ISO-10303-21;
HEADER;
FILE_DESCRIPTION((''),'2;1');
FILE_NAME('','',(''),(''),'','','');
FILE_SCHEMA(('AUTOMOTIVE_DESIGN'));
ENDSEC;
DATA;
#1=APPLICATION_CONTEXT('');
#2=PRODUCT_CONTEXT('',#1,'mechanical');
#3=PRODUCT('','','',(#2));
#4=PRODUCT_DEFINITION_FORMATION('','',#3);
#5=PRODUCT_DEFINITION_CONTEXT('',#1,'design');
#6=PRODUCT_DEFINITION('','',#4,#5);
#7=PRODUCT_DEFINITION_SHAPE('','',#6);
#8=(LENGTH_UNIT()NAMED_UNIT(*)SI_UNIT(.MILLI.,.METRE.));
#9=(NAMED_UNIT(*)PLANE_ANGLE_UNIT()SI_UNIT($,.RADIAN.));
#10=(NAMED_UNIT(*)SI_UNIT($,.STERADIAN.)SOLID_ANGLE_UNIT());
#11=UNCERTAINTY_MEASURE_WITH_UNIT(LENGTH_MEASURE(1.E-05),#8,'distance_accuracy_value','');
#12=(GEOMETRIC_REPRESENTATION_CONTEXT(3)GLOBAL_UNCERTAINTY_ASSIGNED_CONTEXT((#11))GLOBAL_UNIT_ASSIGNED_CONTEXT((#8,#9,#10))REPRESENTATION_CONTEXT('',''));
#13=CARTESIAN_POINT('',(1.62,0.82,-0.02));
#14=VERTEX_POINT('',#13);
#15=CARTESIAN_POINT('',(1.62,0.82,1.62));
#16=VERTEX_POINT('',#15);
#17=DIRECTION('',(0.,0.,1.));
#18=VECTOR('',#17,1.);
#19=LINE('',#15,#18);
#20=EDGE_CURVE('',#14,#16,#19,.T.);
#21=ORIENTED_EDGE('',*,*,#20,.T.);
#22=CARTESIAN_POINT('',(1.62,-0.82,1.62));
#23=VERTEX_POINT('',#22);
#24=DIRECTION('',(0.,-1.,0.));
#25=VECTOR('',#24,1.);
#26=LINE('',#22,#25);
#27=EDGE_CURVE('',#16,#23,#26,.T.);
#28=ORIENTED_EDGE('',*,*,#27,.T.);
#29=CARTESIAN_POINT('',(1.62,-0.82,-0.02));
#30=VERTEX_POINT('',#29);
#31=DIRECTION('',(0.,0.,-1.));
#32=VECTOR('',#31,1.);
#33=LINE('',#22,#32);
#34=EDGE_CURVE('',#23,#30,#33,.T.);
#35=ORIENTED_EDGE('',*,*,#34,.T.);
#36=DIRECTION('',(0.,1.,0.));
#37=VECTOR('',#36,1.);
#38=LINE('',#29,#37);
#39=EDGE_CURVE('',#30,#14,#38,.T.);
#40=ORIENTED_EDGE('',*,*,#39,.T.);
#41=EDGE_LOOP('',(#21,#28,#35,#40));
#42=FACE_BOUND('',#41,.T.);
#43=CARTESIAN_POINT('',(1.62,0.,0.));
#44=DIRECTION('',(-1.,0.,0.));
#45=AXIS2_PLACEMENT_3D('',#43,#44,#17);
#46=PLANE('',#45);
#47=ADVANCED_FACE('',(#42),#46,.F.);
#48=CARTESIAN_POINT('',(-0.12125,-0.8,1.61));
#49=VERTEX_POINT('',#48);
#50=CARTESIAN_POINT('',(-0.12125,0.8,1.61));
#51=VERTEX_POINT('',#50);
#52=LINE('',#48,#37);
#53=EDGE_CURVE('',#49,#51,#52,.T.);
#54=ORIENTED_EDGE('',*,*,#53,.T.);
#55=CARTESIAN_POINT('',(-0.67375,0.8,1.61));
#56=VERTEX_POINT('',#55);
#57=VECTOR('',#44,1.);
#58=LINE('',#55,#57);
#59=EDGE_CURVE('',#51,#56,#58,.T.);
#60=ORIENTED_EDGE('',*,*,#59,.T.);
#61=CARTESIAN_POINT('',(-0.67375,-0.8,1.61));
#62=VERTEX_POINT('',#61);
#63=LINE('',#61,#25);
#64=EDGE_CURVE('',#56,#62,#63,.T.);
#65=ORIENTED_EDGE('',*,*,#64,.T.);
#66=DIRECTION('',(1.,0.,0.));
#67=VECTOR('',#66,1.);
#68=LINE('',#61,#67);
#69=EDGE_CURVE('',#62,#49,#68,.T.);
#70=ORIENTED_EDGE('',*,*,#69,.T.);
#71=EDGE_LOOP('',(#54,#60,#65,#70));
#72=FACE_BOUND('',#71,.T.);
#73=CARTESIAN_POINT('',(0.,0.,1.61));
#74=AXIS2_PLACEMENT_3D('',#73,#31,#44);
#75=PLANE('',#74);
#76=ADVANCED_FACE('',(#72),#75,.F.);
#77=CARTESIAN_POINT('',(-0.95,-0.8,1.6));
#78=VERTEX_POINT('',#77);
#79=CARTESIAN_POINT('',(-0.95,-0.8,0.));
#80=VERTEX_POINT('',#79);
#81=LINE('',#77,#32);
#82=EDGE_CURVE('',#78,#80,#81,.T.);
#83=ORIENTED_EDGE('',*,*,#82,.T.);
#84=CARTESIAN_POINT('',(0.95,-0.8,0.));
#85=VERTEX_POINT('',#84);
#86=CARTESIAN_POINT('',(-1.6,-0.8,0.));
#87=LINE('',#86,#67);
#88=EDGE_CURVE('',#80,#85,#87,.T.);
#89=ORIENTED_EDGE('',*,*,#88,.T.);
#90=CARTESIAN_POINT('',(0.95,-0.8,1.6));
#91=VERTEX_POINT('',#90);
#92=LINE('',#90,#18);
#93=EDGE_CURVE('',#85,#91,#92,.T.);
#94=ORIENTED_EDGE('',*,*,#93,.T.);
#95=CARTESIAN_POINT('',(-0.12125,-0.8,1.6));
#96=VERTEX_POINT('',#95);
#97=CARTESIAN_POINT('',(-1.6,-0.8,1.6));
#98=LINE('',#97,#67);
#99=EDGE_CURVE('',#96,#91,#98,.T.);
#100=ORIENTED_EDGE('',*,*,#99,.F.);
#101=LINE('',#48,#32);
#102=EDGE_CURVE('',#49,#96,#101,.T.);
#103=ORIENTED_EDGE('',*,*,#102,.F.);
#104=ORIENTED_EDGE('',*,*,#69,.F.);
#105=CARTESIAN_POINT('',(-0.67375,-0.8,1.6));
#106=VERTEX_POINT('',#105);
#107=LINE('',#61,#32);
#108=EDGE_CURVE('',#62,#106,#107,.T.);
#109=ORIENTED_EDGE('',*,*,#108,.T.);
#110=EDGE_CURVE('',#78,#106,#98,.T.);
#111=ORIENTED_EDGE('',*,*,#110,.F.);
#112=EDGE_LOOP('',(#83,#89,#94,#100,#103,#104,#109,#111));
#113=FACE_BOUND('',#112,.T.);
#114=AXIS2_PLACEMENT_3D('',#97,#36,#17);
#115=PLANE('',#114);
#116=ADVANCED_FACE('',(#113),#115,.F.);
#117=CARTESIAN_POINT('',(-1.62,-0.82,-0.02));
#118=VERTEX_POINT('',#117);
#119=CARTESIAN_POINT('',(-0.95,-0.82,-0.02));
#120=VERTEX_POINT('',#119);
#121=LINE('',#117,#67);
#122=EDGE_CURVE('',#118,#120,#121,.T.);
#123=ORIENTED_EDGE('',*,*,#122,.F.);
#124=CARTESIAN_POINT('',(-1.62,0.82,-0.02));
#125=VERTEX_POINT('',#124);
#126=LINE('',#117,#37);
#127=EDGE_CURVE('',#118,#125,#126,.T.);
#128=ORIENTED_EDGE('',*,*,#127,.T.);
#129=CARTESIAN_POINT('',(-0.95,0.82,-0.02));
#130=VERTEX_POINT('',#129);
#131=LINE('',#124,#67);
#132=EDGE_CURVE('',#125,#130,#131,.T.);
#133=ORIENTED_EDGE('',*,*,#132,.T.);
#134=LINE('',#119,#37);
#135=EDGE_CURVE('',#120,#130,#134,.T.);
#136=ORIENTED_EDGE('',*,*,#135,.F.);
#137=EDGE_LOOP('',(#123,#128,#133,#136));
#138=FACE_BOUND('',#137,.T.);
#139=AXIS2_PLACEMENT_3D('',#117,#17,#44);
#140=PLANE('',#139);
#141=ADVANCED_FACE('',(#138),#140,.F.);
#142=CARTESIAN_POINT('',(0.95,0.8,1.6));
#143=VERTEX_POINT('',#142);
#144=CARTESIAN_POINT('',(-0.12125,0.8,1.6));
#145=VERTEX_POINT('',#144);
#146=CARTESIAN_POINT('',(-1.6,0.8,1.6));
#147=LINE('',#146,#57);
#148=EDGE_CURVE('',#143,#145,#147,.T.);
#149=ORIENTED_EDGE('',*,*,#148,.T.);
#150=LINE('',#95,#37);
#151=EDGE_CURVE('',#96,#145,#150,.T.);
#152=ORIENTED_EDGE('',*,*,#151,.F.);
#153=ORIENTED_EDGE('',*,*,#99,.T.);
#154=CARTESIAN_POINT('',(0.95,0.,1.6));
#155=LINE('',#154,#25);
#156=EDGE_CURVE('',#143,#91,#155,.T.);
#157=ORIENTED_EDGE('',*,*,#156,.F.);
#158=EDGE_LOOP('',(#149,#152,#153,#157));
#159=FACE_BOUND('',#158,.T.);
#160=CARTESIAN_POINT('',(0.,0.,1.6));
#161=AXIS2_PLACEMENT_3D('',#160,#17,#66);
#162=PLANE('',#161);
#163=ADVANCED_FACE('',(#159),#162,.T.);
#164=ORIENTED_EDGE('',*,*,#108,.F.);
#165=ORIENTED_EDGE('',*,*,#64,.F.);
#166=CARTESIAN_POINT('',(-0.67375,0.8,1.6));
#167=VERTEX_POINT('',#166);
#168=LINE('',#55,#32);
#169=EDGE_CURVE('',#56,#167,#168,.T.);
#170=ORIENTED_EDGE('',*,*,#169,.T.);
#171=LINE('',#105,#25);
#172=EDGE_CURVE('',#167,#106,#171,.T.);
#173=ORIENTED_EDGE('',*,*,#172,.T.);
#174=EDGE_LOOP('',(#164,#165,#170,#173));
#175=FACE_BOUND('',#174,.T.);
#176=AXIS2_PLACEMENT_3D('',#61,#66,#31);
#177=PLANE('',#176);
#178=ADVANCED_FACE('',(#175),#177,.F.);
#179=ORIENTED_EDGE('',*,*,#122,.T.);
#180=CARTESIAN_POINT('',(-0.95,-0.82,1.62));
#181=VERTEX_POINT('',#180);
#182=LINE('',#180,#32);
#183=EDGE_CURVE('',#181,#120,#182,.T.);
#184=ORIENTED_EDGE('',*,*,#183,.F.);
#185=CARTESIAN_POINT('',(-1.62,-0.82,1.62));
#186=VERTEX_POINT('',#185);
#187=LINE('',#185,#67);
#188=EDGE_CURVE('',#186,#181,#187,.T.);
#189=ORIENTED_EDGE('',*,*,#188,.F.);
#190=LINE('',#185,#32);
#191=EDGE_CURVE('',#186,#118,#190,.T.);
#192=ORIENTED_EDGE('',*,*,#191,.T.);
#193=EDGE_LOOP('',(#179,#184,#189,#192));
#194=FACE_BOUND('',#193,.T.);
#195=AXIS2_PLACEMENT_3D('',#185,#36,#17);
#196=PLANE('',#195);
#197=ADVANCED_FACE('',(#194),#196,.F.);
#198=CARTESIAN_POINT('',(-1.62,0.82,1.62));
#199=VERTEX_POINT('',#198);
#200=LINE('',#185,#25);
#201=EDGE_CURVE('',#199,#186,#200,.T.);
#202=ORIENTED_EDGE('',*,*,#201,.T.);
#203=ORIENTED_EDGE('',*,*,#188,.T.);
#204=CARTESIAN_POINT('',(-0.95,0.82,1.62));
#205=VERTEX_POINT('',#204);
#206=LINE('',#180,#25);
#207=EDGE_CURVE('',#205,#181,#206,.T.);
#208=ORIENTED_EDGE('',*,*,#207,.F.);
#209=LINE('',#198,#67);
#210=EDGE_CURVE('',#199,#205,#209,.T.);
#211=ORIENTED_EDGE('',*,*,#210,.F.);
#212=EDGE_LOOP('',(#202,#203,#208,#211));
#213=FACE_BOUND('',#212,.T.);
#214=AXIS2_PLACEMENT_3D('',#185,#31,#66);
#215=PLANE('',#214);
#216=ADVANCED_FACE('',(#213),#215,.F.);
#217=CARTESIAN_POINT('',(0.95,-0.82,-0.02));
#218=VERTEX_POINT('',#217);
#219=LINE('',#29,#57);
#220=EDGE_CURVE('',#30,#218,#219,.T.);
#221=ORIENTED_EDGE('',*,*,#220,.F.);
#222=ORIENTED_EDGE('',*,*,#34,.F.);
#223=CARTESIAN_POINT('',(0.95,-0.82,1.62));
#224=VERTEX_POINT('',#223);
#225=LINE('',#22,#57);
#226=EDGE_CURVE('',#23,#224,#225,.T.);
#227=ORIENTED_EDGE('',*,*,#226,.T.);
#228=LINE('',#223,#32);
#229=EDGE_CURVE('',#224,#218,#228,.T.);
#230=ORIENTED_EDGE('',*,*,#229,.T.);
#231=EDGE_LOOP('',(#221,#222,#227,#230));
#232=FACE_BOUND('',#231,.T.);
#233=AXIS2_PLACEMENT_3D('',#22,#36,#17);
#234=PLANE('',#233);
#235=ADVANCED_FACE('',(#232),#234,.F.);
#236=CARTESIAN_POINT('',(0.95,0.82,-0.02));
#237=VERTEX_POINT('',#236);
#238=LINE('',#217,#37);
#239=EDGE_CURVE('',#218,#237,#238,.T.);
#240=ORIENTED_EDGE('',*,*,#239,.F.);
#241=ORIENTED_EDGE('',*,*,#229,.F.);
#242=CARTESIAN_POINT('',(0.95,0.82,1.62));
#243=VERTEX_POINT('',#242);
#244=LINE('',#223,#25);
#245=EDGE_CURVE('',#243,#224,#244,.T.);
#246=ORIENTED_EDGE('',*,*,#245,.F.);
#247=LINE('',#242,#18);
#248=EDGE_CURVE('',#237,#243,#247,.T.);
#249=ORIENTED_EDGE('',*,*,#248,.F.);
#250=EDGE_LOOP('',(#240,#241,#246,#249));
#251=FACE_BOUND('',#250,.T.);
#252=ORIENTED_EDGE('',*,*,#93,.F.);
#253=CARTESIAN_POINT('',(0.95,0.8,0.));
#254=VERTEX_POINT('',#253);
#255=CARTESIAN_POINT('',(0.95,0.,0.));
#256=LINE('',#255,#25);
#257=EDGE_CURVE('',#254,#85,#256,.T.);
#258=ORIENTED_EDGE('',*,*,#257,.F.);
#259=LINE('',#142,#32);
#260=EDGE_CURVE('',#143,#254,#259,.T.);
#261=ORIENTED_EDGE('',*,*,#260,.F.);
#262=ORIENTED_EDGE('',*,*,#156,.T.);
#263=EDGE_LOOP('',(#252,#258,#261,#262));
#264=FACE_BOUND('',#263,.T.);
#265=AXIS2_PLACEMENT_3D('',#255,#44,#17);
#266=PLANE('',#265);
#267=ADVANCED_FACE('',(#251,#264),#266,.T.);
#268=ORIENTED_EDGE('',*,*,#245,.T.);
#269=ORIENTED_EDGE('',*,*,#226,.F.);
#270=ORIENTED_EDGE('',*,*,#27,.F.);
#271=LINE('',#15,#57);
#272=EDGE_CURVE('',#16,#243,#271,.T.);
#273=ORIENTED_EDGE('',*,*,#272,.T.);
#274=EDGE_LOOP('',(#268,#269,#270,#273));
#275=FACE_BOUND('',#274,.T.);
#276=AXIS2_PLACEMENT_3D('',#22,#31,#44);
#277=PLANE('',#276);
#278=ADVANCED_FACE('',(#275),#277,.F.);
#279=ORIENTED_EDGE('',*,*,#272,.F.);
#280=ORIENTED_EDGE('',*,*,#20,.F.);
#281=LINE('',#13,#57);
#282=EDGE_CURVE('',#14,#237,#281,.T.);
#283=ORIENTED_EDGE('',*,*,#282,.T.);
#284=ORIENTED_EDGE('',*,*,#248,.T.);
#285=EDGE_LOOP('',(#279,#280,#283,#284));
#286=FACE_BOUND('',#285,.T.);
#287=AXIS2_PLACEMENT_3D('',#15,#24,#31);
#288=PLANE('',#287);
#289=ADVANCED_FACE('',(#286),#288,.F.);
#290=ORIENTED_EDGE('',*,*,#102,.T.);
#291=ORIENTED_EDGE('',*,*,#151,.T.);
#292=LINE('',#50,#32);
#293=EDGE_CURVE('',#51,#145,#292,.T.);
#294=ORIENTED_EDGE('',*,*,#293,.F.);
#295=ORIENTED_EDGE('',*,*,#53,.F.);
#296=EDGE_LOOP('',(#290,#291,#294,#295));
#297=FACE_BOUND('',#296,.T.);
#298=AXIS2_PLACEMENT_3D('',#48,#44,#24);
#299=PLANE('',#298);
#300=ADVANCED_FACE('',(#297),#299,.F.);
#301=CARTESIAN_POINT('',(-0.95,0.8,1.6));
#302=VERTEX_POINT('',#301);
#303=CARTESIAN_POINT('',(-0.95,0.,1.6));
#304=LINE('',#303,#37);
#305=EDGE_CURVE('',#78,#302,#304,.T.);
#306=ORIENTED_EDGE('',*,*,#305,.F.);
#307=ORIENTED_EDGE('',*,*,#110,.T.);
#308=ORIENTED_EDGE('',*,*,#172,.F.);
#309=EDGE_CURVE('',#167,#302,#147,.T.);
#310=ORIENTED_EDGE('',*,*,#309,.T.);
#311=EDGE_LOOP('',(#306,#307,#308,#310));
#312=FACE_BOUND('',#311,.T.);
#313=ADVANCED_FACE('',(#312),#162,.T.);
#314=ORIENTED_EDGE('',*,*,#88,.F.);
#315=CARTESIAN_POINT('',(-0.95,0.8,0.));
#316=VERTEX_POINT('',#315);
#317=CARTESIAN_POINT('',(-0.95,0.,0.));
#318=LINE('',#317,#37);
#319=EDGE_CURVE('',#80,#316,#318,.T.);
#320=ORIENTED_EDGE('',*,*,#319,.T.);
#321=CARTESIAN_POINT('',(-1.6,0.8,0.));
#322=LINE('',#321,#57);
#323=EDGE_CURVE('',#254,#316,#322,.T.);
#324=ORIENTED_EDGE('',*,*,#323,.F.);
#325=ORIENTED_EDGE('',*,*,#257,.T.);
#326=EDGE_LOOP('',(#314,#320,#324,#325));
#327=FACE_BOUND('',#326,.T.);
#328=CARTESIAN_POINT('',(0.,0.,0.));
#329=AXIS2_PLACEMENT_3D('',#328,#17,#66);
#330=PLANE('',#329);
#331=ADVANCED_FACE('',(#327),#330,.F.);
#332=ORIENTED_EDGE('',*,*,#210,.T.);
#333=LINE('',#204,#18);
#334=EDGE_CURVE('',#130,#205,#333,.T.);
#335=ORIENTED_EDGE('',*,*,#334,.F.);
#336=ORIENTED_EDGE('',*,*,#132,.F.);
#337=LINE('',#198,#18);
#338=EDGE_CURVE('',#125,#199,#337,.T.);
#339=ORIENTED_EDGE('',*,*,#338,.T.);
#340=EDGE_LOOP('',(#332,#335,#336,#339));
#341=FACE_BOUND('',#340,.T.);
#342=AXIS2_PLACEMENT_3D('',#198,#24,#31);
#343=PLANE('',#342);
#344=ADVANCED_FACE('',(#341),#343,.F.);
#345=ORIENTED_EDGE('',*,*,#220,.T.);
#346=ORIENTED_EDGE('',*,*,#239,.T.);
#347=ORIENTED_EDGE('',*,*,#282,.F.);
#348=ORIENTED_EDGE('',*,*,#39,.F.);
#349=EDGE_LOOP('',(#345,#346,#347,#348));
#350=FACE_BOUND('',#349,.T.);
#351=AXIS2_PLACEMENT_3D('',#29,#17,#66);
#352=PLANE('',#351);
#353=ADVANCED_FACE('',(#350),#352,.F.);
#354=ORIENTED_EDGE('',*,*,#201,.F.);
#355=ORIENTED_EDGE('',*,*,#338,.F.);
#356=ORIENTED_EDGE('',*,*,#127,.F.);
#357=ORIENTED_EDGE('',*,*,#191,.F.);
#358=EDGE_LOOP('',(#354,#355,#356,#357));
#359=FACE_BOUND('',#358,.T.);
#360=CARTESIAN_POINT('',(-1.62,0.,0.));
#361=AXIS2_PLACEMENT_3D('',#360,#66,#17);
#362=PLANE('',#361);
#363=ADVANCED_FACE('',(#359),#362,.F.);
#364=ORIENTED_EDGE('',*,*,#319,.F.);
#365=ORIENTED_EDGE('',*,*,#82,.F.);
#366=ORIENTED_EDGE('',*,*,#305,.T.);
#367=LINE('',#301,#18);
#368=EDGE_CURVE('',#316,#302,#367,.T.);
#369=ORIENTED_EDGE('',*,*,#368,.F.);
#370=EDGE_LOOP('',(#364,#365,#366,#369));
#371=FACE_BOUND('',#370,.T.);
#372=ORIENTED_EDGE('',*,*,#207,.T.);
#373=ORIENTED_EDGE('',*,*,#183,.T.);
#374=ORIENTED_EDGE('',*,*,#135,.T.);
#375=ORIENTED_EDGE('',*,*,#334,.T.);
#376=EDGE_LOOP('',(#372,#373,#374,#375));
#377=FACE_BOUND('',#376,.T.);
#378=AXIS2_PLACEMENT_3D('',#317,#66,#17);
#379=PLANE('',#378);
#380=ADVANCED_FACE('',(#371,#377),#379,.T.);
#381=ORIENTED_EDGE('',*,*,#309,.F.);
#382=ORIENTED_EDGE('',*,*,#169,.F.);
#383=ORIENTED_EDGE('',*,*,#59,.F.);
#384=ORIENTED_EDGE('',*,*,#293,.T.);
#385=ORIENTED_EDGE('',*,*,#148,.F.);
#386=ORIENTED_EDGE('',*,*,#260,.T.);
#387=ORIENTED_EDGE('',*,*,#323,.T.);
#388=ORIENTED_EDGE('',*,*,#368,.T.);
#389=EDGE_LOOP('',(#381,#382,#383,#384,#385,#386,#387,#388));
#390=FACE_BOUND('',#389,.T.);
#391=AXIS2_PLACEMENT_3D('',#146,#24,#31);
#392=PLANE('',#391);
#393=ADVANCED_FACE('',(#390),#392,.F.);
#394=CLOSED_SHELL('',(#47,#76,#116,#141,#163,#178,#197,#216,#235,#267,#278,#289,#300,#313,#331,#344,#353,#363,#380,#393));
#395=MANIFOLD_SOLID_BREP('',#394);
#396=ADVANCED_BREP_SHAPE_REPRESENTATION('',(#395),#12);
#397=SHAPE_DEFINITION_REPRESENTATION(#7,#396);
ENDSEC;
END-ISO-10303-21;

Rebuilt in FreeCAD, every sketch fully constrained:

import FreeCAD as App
import Part
import Sketcher

doc = App.newDocument("Part")
body = doc.addObject("PartDesign::Body", "Body")

sketch1 = body.newObject("Sketcher::SketchObject", "Sketch")
sketch1.AttachmentSupport = (doc.getObject("XY_Plane"), [""])
sketch1.MapMode = "FlatFace"
sketch1.addGeometry(Part.LineSegment(App.Vector(-1.6, 0.8, 0), App.Vector(-1.6, -0.8, 0)), False)
sketch1.addGeometry(Part.LineSegment(App.Vector(-1.6, -0.8, 0), App.Vector(1.6, -0.8, 0)), False)
sketch1.addGeometry(Part.LineSegment(App.Vector(1.6, -0.8, 0), App.Vector(1.6, 0.8, 0)), False)
sketch1.addGeometry(Part.LineSegment(App.Vector(1.6, 0.8, 0), App.Vector(-1.6, 0.8, 0)), False)
sketch1.addConstraint(Sketcher.Constraint("Coincident", 0, 2, 1, 1))
sketch1.addConstraint(Sketcher.Constraint("Coincident", 1, 2, 2, 1))
sketch1.addConstraint(Sketcher.Constraint("Coincident", 2, 2, 3, 1))
sketch1.addConstraint(Sketcher.Constraint("Coincident", 3, 2, 0, 1))
sketch1.addConstraint(Sketcher.Constraint("Vertical", 0))
sketch1.addConstraint(Sketcher.Constraint("Horizontal", 1))
sketch1.addConstraint(Sketcher.Constraint("Vertical", 2))
sketch1.addConstraint(Sketcher.Constraint("Horizontal", 3))
sketch1.addConstraint(Sketcher.Constraint("Symmetric", 0, 2, 2, 2, -1, 1))
sketch1.addConstraint(Sketcher.Constraint("DistanceX", 1, 1, 1, 2, 3.2))
sketch1.addConstraint(Sketcher.Constraint("DistanceY", 0, 2, 0, 1, 1.6))
pad1 = body.newObject("PartDesign::Pad", "Pad")
pad1.Profile = sketch1
pad1.Length = 1.6

sketch2 = body.newObject("Sketcher::SketchObject", "Sketch001")
sketch2.AttachmentSupport = (doc.getObject("YZ_Plane"), [""])
sketch2.MapMode = "FlatFace"
sketch2.AttachmentOffset = App.Placement(App.Vector(0, 0, 0.95), App.Rotation())
sketch2.addGeometry(Part.LineSegment(App.Vector(0.8, 1.6, 0), App.Vector(-0.8, 1.6, 0)), False)
sketch2.addGeometry(Part.LineSegment(App.Vector(-0.8, 1.6, 0), App.Vector(-0.8, 0, 0)), False)
sketch2.addGeometry(Part.LineSegment(App.Vector(-0.8, 0, 0), App.Vector(0.8, 0, 0)), False)
sketch2.addGeometry(Part.LineSegment(App.Vector(0.8, 0, 0), App.Vector(0.8, 1.6, 0)), False)
sketch2.addConstraint(Sketcher.Constraint("Coincident", 0, 2, 1, 1))
sketch2.addConstraint(Sketcher.Constraint("Coincident", 1, 2, 2, 1))
sketch2.addConstraint(Sketcher.Constraint("Coincident", 2, 2, 3, 1))
sketch2.addConstraint(Sketcher.Constraint("Coincident", 3, 2, 0, 1))
sketch2.addConstraint(Sketcher.Constraint("Horizontal", 0))
sketch2.addConstraint(Sketcher.Constraint("Vertical", 1))
sketch2.addConstraint(Sketcher.Constraint("Horizontal", 2))
sketch2.addConstraint(Sketcher.Constraint("Vertical", 3))
sketch2.addConstraint(Sketcher.Constraint("Equal", 2, 1))
sketch2.addConstraint(Sketcher.Constraint("DistanceX", 0, 2, 0, 1, 1.64))
sketch2.addConstraint(Sketcher.Constraint("DistanceX", 0, 2, -1, 1, 0.82))
sketch2.addConstraint(Sketcher.Constraint("DistanceY", -1, 1, 0, 2, 1.62))
pad2 = body.newObject("PartDesign::Pad", "Pad001")
pad2.Profile = sketch2
pad2.Length = 0.67
doc.recompute()

mirrored = body.newObject("PartDesign::Mirrored", "Mirrored")
mirrored.Originals = [pad2]
mirrored.MirrorPlane = (doc.getObject("YZ_Plane"), [""])
body.Tip = mirrored

sketch3 = body.newObject("Sketcher::SketchObject", "Sketch002")
sketch3.AttachmentSupport = (doc.getObject("XY_Plane"), [""])
sketch3.MapMode = "FlatFace"
sketch3.AttachmentOffset = App.Placement(App.Vector(0, 0, 1.6), App.Rotation())
sketch3.addGeometry(Part.LineSegment(App.Vector(-0.7, 0.8, 0), App.Vector(-0.7, -0.8, 0)), False)
sketch3.addGeometry(Part.LineSegment(App.Vector(-0.7, -0.8, 0), App.Vector(-0.1, -0.8, 0)), False)
sketch3.addGeometry(Part.LineSegment(App.Vector(-0.1, -0.8, 0), App.Vector(-0.1, 0.8, 0)), False)
sketch3.addGeometry(Part.LineSegment(App.Vector(-0.1, 0.8, 0), App.Vector(-0.7, 0.8, 0)), False)
sketch3.addConstraint(Sketcher.Constraint("Coincident", 0, 2, 1, 1))
sketch3.addConstraint(Sketcher.Constraint("Coincident", 1, 2, 2, 1))
sketch3.addConstraint(Sketcher.Constraint("Coincident", 2, 2, 3, 1))
sketch3.addConstraint(Sketcher.Constraint("Coincident", 3, 2, 0, 1))
sketch3.addConstraint(Sketcher.Constraint("Vertical", 0))
sketch3.addConstraint(Sketcher.Constraint("Horizontal", 1))
sketch3.addConstraint(Sketcher.Constraint("Vertical", 2))
sketch3.addConstraint(Sketcher.Constraint("Horizontal", 3))
sketch3.addConstraint(Sketcher.Constraint("DistanceY", 0, 2, 0, 1, 1.6))
sketch3.addConstraint(Sketcher.Constraint("DistanceY", 0, 2, -1, 1, 0.8))
sketch3.addConstraint(Sketcher.Constraint("DistanceX", 1, 1, 1, 2, 0.5525))
sketch3.addConstraint(Sketcher.Constraint("DistanceX", 0, 2, -1, 1, 0.67375))
pad3 = body.newObject("PartDesign::Pad", "Pad002")
pad3.Profile = sketch3
pad3.Length = 0.01

doc.recompute()
